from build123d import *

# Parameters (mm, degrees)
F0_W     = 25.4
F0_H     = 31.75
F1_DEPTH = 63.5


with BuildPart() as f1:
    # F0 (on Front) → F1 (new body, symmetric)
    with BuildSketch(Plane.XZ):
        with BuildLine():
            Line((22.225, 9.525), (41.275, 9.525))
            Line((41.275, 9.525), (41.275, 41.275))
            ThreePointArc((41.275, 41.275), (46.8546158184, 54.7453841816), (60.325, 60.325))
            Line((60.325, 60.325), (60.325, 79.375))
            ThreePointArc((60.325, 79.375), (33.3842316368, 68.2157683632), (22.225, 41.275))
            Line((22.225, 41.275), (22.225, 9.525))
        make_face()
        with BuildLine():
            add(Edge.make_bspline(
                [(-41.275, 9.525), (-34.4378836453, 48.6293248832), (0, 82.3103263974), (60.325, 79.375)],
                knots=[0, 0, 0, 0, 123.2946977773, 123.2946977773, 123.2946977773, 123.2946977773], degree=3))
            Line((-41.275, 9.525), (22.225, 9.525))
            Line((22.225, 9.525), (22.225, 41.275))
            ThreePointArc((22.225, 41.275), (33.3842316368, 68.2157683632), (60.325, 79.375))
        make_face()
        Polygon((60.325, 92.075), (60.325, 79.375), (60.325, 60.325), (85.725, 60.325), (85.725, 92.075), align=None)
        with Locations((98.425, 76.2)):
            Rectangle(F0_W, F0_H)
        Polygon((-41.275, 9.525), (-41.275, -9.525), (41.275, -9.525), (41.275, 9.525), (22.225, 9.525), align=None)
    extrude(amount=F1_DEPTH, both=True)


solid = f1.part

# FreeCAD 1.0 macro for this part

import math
import FreeCAD as App
import Part
import Sketcher
from FreeCAD import Vector
Q = App.Units.Quantity

doc = App.newDocument("Part")
body = doc.addObject("PartDesign::Body", "Body")

sketch1 = doc.addObject("Sketcher::SketchObject", "Sketch")
body.addObject(sketch1)
sketch1.AttachmentSupport = (doc.XZ_Plane, [""])
sketch1.MapMode = "FlatFace"
sketch1.addGeometry([
    Part.ArcOfCircle(Part.Circle(Vector(60.325, 41.275, 0), Vector(0, 0, 1), 19.05), math.radians(90), math.radians(180)),
    Part.LineSegment(Vector(60.325, 60.325, 0), Vector(111.125, 60.325, 0)),
    Part.LineSegment(Vector(111.125, 60.325, 0), Vector(111.125, 92.075, 0)),
    Part.LineSegment(Vector(111.125, 92.075, 0), Vector(60.325, 92.075, 0)),
    Part.LineSegment(Vector(60.325, 92.075, 0), Vector(60.325, 79.375, 0)),
    Part.BSplineCurve([Vector(-41.275, 9.525, 0), Vector(-34.437884, 48.629325, 0), Vector(0, 82.310326, 0), Vector(60.325, 79.375, 0)], [4, 4], [0, 123.294697777], False, 3, [1, 1, 1, 1], False),
    Part.LineSegment(Vector(-41.275, 9.525, 0), Vector(-41.275, -9.525, 0)),
    Part.LineSegment(Vector(-41.275, -9.525, 0), Vector(41.275, -9.525, 0)),
    Part.LineSegment(Vector(41.275, -9.525, 0), Vector(41.275, 41.275, 0)),
], False)
sketch1.addConstraint([
    Sketcher.Constraint("Block", 5),
    Sketcher.Constraint("Tangent", 0, 1, 1, 1),
    Sketcher.Constraint("Coincident", 1, 2, 2, 1),
    Sketcher.Constraint("Coincident", 2, 2, 3, 1),
    Sketcher.Constraint("Coincident", 3, 2, 4, 1),
    Sketcher.Constraint("Coincident", 4, 2, 5, 2),
    Sketcher.Constraint("Coincident", 5, 1, 6, 1),
    Sketcher.Constraint("Coincident", 6, 2, 7, 1),
    Sketcher.Constraint("Coincident", 7, 2, 8, 1),
    Sketcher.Constraint("Tangent", 8, 2, 0, 2),
    Sketcher.Constraint("Horizontal", 1),
    Sketcher.Constraint("Vertical", 2),
    Sketcher.Constraint("Horizontal", 3),
    Sketcher.Constraint("Vertical", 4),
    Sketcher.Constraint("Vertical", 6),
    Sketcher.Constraint("Horizontal", 7),
    Sketcher.Constraint("Vertical", 8),
    Sketcher.Constraint("Vertical", 0, 1, 3, 2),
    Sketcher.Constraint("Equal", 3, 8),
    Sketcher.Constraint("DistanceX", 1, 1, 1, 2, Q("2 in")),
    Sketcher.Constraint("Radius", 0, Q("0.75 in")),
    Sketcher.Constraint("DistanceY", 4, 2, 4, 1, Q("0.5 in")),
    Sketcher.Constraint("DistanceY", 0, 3, 2, 2, Q("2 in")),
])
pad1 = doc.addObject("PartDesign::Pad", "Pad")
body.addObject(pad1)
pad1.Profile = sketch1
pad1.Length = Q("5 in")
pad1.Midplane = True

doc.recompute()
